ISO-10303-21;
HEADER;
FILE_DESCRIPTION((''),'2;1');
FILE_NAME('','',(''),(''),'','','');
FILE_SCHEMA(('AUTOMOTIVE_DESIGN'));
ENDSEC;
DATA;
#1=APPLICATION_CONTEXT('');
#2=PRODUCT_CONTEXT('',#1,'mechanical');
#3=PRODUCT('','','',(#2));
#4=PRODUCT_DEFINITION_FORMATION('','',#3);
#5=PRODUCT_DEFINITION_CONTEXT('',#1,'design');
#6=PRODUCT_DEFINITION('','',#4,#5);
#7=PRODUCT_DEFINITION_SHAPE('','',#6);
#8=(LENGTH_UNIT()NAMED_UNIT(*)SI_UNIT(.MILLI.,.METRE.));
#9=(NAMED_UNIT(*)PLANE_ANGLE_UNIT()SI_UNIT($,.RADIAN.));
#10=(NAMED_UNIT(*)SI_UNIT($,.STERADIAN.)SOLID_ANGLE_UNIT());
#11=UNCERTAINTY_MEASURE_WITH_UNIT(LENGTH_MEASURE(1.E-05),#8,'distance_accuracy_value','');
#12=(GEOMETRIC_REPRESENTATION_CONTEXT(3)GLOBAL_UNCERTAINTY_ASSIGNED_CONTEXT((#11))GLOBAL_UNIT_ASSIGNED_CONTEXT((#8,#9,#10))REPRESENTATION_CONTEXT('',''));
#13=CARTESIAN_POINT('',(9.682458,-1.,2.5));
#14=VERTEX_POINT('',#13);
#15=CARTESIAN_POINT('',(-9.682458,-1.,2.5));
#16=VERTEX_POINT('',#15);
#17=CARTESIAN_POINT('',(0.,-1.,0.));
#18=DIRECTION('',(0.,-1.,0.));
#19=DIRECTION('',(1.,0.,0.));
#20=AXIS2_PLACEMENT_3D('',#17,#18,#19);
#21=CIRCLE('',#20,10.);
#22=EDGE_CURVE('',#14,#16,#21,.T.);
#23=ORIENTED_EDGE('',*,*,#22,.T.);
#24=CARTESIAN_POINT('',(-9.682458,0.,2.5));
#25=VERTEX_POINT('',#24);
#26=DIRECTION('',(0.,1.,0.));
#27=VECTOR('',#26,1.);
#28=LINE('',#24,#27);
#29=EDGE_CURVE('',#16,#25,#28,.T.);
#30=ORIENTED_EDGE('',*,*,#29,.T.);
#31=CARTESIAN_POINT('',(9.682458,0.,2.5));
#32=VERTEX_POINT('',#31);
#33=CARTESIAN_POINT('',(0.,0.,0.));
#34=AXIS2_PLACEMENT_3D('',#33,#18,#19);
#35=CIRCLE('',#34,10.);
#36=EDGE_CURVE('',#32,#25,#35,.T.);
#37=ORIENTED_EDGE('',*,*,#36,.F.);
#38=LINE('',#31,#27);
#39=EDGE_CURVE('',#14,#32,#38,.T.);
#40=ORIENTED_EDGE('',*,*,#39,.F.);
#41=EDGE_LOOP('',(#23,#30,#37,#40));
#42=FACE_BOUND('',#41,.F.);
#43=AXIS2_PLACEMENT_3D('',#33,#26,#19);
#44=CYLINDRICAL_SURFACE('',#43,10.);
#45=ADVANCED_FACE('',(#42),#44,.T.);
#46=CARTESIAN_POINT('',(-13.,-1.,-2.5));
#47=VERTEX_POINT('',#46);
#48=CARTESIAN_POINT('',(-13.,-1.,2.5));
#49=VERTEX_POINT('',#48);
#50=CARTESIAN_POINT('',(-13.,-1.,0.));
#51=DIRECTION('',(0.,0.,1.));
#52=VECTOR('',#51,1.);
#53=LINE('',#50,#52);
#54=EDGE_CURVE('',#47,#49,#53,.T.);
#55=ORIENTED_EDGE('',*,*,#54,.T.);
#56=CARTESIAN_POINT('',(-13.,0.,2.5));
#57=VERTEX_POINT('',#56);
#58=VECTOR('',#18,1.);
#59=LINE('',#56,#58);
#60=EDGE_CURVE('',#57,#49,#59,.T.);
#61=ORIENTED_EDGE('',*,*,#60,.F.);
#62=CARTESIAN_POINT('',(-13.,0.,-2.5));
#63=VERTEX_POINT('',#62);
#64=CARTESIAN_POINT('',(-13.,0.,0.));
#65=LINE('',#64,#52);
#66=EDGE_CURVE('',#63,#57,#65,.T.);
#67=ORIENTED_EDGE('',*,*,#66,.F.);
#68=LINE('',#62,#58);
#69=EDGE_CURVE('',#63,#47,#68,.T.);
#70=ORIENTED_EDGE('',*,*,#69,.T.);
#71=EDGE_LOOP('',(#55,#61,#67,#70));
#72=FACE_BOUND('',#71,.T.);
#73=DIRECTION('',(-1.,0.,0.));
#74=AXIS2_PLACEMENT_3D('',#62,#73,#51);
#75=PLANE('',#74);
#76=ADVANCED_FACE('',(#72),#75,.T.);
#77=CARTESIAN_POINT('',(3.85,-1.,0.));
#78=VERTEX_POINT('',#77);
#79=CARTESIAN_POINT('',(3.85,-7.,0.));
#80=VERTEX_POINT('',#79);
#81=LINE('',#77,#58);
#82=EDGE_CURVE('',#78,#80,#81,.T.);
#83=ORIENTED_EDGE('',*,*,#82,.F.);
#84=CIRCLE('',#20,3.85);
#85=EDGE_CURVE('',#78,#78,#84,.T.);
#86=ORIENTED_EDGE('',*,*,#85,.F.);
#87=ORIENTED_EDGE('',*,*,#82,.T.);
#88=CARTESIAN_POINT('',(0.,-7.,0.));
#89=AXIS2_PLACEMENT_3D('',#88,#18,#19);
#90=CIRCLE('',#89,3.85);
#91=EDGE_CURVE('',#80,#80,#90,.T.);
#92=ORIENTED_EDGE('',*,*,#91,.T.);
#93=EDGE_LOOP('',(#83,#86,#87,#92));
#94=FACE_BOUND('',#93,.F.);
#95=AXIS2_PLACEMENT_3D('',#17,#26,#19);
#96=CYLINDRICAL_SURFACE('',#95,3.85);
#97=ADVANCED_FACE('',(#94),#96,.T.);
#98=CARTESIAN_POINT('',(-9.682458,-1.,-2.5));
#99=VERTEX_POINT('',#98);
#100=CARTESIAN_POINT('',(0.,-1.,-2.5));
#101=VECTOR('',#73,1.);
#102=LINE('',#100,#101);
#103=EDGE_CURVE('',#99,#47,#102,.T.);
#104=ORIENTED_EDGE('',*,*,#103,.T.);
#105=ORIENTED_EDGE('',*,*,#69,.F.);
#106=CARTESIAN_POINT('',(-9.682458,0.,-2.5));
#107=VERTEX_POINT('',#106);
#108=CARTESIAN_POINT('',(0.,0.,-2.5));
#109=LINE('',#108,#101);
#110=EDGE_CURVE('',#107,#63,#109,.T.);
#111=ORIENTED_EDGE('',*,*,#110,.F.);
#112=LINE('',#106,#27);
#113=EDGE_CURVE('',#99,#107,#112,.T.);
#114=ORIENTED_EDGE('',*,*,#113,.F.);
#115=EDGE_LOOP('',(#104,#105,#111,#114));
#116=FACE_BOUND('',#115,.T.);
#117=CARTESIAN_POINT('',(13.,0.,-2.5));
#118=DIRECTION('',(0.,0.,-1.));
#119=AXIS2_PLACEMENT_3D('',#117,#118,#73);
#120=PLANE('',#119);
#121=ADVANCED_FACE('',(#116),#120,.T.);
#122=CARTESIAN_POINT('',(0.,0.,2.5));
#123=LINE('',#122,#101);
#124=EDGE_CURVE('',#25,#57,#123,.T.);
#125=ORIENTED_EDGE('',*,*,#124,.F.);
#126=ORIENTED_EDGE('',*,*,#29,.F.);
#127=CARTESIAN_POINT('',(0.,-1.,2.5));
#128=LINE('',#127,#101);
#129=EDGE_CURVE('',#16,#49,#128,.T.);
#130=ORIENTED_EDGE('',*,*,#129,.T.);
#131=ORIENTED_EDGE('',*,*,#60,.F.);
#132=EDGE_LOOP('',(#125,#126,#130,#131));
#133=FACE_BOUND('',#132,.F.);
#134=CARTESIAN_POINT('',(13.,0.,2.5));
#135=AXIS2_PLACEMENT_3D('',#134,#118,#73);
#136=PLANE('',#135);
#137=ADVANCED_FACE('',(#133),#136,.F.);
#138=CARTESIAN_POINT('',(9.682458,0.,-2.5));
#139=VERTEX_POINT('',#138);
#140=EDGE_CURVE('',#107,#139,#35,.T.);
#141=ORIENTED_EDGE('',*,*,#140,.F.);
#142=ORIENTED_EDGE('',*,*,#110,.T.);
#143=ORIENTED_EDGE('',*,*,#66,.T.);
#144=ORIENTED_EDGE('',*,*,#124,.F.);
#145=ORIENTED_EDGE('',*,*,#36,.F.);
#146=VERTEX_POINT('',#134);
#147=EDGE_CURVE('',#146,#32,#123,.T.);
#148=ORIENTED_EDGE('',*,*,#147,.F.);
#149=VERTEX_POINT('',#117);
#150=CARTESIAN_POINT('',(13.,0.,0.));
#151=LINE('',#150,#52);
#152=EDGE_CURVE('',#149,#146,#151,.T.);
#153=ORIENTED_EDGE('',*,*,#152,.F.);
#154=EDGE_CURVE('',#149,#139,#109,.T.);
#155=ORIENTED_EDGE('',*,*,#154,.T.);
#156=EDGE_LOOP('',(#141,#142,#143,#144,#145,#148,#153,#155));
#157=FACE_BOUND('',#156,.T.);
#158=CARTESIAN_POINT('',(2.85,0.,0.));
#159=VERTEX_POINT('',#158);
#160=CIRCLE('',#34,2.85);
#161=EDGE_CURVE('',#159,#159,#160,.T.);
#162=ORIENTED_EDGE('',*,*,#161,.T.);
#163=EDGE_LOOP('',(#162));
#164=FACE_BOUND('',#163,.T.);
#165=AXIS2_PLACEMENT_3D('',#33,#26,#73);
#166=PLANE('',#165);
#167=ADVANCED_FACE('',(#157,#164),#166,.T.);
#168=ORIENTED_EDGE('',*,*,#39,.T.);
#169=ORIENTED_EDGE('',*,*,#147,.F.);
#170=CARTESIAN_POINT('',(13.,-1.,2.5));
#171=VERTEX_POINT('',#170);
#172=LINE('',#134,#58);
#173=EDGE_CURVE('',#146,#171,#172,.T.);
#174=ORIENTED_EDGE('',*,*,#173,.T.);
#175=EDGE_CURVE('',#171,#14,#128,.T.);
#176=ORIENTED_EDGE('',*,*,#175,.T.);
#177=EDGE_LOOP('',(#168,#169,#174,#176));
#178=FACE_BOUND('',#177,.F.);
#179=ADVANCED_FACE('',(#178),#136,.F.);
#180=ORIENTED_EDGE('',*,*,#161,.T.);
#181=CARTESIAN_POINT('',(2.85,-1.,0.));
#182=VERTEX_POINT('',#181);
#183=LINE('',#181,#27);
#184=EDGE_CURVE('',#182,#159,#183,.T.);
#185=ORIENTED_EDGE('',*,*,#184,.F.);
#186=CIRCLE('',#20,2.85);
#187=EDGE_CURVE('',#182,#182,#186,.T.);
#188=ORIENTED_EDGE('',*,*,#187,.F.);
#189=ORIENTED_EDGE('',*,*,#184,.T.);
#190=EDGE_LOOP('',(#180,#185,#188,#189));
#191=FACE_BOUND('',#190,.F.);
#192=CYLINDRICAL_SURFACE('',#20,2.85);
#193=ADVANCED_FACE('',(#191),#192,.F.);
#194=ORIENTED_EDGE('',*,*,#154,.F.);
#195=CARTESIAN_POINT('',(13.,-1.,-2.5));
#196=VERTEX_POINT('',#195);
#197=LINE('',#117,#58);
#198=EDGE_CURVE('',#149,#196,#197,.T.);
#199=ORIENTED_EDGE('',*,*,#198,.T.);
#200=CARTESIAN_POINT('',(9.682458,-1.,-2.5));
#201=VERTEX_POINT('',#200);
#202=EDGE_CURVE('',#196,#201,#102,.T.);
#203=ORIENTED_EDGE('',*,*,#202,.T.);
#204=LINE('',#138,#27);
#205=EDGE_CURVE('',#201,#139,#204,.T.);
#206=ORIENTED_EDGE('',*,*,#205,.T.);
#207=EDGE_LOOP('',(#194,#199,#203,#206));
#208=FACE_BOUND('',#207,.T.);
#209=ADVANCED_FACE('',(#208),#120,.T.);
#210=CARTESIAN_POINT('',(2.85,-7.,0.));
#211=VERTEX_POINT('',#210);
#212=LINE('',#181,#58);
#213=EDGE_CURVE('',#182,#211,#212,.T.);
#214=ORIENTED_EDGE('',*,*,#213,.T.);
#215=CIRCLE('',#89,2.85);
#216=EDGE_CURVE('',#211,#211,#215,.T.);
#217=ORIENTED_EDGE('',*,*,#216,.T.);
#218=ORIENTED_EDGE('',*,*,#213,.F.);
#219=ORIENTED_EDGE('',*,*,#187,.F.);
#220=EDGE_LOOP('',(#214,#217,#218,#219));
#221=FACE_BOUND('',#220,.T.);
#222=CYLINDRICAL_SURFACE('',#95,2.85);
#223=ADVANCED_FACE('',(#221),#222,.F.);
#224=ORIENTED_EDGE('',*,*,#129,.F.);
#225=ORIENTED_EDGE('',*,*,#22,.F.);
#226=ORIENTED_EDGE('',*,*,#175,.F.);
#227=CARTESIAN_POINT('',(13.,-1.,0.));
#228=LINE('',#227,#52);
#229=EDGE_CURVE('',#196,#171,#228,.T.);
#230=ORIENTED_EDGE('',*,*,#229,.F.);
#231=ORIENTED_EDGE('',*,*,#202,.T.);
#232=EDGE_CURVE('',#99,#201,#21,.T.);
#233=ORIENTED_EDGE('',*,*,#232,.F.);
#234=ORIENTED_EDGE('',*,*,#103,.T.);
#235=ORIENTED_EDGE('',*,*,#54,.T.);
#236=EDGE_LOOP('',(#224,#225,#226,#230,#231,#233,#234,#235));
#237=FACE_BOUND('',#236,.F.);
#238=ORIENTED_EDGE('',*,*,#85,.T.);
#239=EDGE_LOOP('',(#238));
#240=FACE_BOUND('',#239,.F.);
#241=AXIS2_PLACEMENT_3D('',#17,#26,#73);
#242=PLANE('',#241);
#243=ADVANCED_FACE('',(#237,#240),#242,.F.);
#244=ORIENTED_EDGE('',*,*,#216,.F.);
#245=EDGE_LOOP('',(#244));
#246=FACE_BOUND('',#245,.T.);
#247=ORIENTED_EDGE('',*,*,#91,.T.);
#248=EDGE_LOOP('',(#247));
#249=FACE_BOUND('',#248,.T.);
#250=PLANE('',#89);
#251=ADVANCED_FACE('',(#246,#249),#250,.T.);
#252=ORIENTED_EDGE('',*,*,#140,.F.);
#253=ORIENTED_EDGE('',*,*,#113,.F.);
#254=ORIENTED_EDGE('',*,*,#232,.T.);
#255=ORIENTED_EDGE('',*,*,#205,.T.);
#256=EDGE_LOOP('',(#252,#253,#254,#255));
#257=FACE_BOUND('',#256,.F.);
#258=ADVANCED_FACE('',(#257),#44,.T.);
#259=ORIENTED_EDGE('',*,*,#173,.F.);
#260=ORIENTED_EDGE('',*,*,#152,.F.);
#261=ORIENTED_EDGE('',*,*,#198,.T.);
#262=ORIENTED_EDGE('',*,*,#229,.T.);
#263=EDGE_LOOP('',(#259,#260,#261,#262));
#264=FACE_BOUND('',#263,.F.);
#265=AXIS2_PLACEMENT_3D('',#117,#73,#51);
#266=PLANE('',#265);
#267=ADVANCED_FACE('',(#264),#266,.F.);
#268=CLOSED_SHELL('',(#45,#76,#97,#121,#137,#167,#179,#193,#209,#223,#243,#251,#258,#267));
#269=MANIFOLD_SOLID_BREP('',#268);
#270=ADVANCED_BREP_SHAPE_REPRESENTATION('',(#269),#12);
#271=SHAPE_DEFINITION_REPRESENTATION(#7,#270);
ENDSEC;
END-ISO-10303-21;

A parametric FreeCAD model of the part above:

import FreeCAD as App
import Part
import Sketcher

V = App.Vector
Q = App.Units.Quantity


def add_polygon(sketch, points):
    """Adds a closed chain of lines whose ends are joined by coincident constraints."""
    first, n = sketch.GeometryCount, len(points)
    for a, b in zip(points, points[1:] + points[:1]):
        sketch.addGeometry(Part.LineSegment(App.Vector(*a, 0), App.Vector(*b, 0)), False)
    for i in range(n):
        sketch.addConstraint(Sketcher.Constraint("Coincident", first + i, 2, first + (i + 1) % n, 1))

doc = App.newDocument("Part")
params = doc.addObject("Spreadsheet::Sheet", "Params")
for row, (alias, value) in enumerate([
    ("sketch1_diameter", "20 mm"),
    ("pad1_length", "1 mm"),
    ("sketch2_width", "26 mm"),
    ("sketch2_height", "5 mm"),
    ("pad2_length", "1 mm"),
    ("sketch3_diameter", "7.7 mm"),
    ("sketch3_diameter2", "5.7 mm"),
    ("pad3_length", "6 mm"),
    ("sketch4_diameter", "5.7 mm"),
], start=1):
    params.set(f"A{row}", alias)
    params.set(f"B{row}", "=" + value)
    params.setAlias(f"B{row}", alias)

body = doc.addObject("PartDesign::Body", "Body")

# Sketch on XZ plane
sketch1 = body.newObject("Sketcher::SketchObject", "Sketch")
sketch1.AttachmentSupport = (doc.getObject("XZ_Plane"), [""])
sketch1.MapMode = "FlatFace"
sketch1.addGeometry(Part.Circle(V(0, 0, 0), V(0, 0, 1), 10), False)
sketch1.addConstraint(Sketcher.Constraint("Coincident", 0, 3, -1, 1))
sketch1.addConstraint(Sketcher.Constraint("Diameter", 0, Q("20 mm")))
sketch1.setExpression("Constraints[1]", "Params.sketch1_diameter")
pad1 = body.newObject("PartDesign::Pad", "Pad")
pad1.Profile = sketch1
pad1.setExpression("Length", "Params.pad1_length")

# Sketch on XZ plane
sketch2 = body.newObject("Sketcher::SketchObject", "Sketch001")
sketch2.AttachmentSupport = (doc.getObject("XZ_Plane"), [""])
sketch2.MapMode = "FlatFace"
add_polygon(sketch2, [(13, 2), (13, -2), (-13, -2), (-13, 2)])  # lines 0-3
sketch2.addConstraint(Sketcher.Constraint("Vertical", 0))
sketch2.addConstraint(Sketcher.Constraint("Horizontal", 1))
sketch2.addConstraint(Sketcher.Constraint("Vertical", 2))
sketch2.addConstraint(Sketcher.Constraint("Horizontal", 3))
sketch2.addConstraint(Sketcher.Constraint("Symmetric", 0, 2, 2, 2, -1, 1))
sketch2.addConstraint(Sketcher.Constraint("DistanceX", 1, 2, 1, 1, Q("26 mm")))
sketch2.addConstraint(Sketcher.Constraint("DistanceY", 0, 2, 0, 1, Q("5 mm")))
sketch2.setExpression("Constraints[9]", "Params.sketch2_width")
sketch2.setExpression("Constraints[10]", "Params.sketch2_height")
pad2 = body.newObject("PartDesign::Pad", "Pad001")
pad2.Profile = sketch2
pad2.setExpression("Length", "Params.pad2_length")

# Sketch on XZ plane
sketch3 = body.newObject("Sketcher::SketchObject", "Sketch002")
sketch3.AttachmentSupport = (doc.getObject("XZ_Plane"), [""])
sketch3.MapMode = "FlatFace"
sketch3.AttachmentOffset = App.Placement(V(0, 0, 1), App.Rotation())
sketch3.addGeometry(Part.Circle(V(0, 0, 0), V(0, 0, 1), 3.9), False)
sketch3.addGeometry(Part.Circle(V(0, 0, 0), V(0, 0, 1), 2.9), False)
sketch3.addConstraint(Sketcher.Constraint("Coincident", 0, 3, -1, 1))
sketch3.addConstraint(Sketcher.Constraint("Coincident", 1, 3, -1, 1))
sketch3.addConstraint(Sketcher.Constraint("Diameter", 0, Q("7.7 mm")))
sketch3.addConstraint(Sketcher.Constraint("Diameter", 1, Q("5.7 mm")))
sketch3.setExpression("Constraints[2]", "Params.sketch3_diameter")
sketch3.setExpression("Constraints[3]", "Params.sketch3_diameter2")
pad3 = body.newObject("PartDesign::Pad", "Pad002")
pad3.Profile = sketch3
pad3.setExpression("Length", "Params.pad3_length")

# Sketch on XZ plane
sketch4 = body.newObject("Sketcher::SketchObject", "Sketch003")
sketch4.AttachmentSupport = (doc.getObject("XZ_Plane"), [""])
sketch4.MapMode = "FlatFace"
sketch4.AttachmentOffset = App.Placement(V(0, 0, 1), App.Rotation())
sketch4.addGeometry(Part.Circle(V(0, 0, 0), V(0, 0, 1), 2.9), False)
sketch4.addConstraint(Sketcher.Constraint("Coincident", 0, 3, -1, 1))
sketch4.addConstraint(Sketcher.Constraint("Diameter", 0, Q("5.7 mm")))
sketch4.setExpression("Constraints[1]", "Params.sketch4_diameter")
pocket1 = body.newObject("PartDesign::Pocket", "Pocket")
pocket1.Profile = sketch4
pocket1.Type = "ThroughAll"
pocket1.Midplane = True

doc.recompute()
